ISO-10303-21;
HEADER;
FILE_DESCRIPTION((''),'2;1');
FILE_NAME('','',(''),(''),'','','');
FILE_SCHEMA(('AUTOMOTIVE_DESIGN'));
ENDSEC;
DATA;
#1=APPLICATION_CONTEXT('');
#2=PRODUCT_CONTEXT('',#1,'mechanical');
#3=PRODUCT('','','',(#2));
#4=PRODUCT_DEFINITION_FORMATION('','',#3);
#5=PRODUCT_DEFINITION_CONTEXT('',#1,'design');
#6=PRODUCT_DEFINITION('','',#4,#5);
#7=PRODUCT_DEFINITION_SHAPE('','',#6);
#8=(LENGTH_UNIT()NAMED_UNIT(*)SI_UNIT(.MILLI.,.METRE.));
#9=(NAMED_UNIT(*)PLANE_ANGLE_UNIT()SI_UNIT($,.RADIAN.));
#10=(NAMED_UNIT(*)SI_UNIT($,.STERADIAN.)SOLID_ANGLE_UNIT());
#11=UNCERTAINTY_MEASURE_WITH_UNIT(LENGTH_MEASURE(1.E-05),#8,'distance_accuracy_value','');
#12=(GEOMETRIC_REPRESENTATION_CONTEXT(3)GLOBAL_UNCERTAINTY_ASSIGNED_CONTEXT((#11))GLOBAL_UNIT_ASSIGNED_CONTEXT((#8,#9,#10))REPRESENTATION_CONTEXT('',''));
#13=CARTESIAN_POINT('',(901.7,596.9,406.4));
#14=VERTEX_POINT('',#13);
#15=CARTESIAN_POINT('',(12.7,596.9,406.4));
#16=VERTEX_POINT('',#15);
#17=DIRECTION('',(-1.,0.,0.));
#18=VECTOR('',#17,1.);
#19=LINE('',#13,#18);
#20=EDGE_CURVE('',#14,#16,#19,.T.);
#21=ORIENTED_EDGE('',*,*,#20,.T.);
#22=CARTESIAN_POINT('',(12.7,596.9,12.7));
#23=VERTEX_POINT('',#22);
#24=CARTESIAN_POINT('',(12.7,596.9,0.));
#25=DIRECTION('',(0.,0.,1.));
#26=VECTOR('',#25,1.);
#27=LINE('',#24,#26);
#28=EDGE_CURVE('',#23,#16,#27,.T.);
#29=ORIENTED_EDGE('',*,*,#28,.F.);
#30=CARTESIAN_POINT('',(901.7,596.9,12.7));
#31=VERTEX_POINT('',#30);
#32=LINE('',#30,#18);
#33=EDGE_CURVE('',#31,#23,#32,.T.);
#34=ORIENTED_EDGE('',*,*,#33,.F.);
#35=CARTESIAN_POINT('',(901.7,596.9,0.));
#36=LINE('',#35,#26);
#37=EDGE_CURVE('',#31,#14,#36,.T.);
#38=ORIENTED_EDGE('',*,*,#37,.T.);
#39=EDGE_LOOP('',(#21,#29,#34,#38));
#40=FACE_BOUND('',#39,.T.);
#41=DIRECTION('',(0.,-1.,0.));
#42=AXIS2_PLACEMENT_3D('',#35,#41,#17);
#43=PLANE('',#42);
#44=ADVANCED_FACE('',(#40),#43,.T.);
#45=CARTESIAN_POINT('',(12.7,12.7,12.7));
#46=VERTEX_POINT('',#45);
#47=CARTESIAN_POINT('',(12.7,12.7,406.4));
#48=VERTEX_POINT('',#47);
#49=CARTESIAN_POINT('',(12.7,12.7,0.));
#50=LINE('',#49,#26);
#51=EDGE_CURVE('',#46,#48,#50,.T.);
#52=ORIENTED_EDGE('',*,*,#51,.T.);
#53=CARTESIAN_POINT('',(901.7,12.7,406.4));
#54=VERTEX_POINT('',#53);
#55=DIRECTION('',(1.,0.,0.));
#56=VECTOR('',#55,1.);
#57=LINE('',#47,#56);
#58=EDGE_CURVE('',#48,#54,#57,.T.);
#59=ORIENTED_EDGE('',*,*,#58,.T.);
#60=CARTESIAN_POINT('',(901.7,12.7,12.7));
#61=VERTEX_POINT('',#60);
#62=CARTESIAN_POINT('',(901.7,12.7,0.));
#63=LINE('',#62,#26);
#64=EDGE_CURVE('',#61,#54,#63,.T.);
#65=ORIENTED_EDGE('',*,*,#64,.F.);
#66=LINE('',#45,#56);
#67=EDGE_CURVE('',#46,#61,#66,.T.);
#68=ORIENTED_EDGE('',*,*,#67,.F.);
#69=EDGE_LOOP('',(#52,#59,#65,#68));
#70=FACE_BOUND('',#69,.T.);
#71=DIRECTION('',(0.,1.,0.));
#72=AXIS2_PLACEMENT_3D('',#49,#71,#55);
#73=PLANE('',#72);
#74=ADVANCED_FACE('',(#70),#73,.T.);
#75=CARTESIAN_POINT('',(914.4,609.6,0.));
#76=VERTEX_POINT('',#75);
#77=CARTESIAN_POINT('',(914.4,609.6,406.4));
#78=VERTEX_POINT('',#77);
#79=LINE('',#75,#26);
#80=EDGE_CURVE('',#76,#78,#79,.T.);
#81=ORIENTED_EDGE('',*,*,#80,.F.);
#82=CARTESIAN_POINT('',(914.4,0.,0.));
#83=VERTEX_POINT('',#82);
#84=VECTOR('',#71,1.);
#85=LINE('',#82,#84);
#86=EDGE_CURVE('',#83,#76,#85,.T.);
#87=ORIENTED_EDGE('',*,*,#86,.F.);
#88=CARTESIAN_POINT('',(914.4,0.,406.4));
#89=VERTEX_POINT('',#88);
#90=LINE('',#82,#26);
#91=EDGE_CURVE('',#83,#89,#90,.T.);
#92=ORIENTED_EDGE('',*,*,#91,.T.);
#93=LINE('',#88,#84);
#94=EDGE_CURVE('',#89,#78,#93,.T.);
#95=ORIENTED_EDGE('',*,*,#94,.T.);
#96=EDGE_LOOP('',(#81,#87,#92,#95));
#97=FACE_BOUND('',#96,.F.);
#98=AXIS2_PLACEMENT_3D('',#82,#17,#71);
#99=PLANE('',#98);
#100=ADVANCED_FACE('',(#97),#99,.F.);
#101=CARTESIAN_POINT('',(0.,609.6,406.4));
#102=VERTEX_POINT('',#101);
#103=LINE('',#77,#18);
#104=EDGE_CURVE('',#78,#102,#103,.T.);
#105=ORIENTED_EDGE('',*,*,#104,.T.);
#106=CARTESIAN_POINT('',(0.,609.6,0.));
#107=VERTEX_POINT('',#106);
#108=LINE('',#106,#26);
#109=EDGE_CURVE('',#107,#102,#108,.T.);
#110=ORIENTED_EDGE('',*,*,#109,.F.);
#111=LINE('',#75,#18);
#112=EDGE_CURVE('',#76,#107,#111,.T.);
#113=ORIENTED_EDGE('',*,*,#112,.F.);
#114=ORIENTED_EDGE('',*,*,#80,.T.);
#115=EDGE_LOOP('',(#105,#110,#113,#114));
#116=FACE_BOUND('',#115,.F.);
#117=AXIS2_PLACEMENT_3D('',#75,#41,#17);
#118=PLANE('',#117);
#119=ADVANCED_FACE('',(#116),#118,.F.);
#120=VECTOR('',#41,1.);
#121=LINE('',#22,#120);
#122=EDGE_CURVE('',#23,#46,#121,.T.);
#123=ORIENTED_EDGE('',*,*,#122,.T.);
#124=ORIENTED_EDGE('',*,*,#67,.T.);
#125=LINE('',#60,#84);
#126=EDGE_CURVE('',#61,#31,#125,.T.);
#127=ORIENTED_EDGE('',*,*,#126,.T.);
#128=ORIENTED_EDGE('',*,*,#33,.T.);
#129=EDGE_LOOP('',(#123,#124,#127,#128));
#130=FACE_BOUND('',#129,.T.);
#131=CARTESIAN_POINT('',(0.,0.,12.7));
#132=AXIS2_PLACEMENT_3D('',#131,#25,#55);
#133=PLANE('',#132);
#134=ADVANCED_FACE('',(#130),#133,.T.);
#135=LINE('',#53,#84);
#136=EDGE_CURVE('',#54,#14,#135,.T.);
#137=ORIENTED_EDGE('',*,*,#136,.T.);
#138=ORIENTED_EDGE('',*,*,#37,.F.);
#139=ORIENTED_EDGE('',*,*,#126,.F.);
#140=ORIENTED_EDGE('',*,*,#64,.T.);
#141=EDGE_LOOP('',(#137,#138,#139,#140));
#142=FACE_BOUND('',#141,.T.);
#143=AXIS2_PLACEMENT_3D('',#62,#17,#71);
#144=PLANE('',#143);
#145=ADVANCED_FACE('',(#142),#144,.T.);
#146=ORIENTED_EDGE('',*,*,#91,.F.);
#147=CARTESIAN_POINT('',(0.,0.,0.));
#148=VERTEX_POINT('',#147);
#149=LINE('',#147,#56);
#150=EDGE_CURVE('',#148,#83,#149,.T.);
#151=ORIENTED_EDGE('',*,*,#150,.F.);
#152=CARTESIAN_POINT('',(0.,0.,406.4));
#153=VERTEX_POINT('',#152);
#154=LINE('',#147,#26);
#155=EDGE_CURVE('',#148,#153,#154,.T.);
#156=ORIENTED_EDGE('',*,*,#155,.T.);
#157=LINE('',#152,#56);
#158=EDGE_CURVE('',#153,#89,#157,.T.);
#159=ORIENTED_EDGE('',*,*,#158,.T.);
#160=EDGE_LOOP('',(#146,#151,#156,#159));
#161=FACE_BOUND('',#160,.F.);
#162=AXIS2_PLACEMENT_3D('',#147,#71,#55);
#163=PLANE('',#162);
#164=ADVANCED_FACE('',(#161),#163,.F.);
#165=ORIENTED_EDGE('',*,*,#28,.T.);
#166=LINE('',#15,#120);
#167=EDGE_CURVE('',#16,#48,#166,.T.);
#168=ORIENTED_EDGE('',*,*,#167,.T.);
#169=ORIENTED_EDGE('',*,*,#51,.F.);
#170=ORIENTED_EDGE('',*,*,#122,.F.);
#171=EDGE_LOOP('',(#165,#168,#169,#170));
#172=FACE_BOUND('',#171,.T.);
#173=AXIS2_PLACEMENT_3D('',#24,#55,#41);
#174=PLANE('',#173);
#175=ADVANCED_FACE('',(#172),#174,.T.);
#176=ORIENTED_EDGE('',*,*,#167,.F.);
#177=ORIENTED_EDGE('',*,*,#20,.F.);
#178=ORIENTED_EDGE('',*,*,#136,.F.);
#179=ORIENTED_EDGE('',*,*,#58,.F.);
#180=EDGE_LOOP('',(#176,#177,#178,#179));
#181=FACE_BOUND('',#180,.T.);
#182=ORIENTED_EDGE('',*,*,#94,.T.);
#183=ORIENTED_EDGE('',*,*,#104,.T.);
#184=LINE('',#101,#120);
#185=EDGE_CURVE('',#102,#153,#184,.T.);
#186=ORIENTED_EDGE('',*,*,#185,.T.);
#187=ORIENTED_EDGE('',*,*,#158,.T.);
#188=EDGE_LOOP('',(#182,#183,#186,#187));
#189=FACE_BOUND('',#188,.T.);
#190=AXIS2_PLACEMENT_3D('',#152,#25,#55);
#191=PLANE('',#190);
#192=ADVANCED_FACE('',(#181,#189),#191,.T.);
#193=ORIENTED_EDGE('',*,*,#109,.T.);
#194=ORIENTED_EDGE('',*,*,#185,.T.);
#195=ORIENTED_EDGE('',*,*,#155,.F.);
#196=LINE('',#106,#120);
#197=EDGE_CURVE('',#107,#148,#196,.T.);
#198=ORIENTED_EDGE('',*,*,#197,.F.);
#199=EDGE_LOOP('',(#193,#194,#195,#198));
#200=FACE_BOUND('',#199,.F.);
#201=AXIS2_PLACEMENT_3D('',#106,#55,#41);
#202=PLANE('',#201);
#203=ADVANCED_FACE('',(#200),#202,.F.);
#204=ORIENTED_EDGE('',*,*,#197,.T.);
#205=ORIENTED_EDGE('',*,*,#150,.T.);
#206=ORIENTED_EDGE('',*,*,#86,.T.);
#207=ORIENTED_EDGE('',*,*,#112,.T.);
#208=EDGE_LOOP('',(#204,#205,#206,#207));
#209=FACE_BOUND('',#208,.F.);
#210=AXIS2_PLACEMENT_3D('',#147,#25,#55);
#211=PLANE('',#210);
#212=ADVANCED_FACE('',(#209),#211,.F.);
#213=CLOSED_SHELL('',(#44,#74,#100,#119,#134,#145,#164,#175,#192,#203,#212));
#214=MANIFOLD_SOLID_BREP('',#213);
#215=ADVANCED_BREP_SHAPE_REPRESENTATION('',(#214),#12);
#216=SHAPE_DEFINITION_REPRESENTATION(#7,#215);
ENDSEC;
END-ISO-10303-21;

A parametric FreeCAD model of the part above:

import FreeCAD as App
import Part
import Sketcher
Q = App.Units.Quantity


def add_polygon(sketch, points):
    """Adds a closed chain of lines whose ends are joined by coincident constraints."""
    first, n = sketch.GeometryCount, len(points)
    for a, b in zip(points, points[1:] + points[:1]):
        sketch.addGeometry(Part.LineSegment(App.Vector(*a, 0), App.Vector(*b, 0)), False)
    for i in range(n):
        sketch.addConstraint(Sketcher.Constraint("Coincident", first + i, 2, first + (i + 1) % n, 1))

doc = App.newDocument("Part")
body = doc.addObject("PartDesign::Body", "Body")

# Sketch on XY plane
sketch1 = body.newObject("Sketcher::SketchObject", "Sketch")
sketch1.AttachmentSupport = (doc.getObject("XY_Plane"), [""])
sketch1.MapMode = "FlatFace"
add_polygon(sketch1, [(0, 610), (0, 0), (914, 0), (914, 610)])  # lines 0-3
add_polygon(sketch1, [(902, 13), (13, 13), (13, 597), (902, 597)])  # lines 4-7
sketch1.addConstraint([
    Sketcher.Constraint("Vertical", 0),
    Sketcher.Constraint("Horizontal", 1),
    Sketcher.Constraint("Vertical", 2),
    Sketcher.Constraint("Horizontal", 3),
    Sketcher.Constraint("Horizontal", 4),
    Sketcher.Constraint("Vertical", 5),
    Sketcher.Constraint("Horizontal", 6),
    Sketcher.Constraint("Vertical", 7),
    Sketcher.Constraint("Coincident", 0, 2, -1, 1),
    Sketcher.Constraint("DistanceX", 1, 1, 1, 2, Q("36 in")),
    Sketcher.Constraint("DistanceY", 0, 2, 0, 1, Q("24 in")),
    Sketcher.Constraint("DistanceX", -1, 1, 4, 2, Q("0.5 in")),
    Sketcher.Constraint("DistanceY", -1, 1, 4, 2, Q("0.5 in")),
    Sketcher.Constraint("DistanceY", 5, 2, 3, 2, Q("0.5 in")),
    Sketcher.Constraint("DistanceX", 6, 2, 2, 2, Q("0.5 in")),
])
pad1 = body.newObject("PartDesign::Pad", "Pad")
pad1.Profile = sketch1
pad1.Length = Q("16 in")

# Sketch on XY plane
sketch2 = body.newObject("Sketcher::SketchObject", "Sketch001")
sketch2.AttachmentSupport = (doc.getObject("XY_Plane"), [""])
sketch2.MapMode = "FlatFace"
add_polygon(sketch2, [(13, 597), (13, 13), (902, 13), (902, 597)])  # lines 0-3
sketch2.addConstraint([
    Sketcher.Constraint("Vertical", 0),
    Sketcher.Constraint("Horizontal", 1),
    Sketcher.Constraint("Vertical", 2),
    Sketcher.Constraint("Horizontal", 3),
    Sketcher.Constraint("DistanceX", -1, 1, 0, 2, Q("0.5 in")),
    Sketcher.Constraint("DistanceY", -1, 1, 0, 2, Q("0.5 in")),
    Sketcher.Constraint("DistanceX", 1, 1, 1, 2, Q("35 in")),
    Sketcher.Constraint("DistanceY", 0, 2, 0, 1, Q("23 in")),
])
pad2 = body.newObject("PartDesign::Pad", "Pad001")
pad2.Profile = sketch2
pad2.Length = Q("0.5 in")

doc.recompute()
